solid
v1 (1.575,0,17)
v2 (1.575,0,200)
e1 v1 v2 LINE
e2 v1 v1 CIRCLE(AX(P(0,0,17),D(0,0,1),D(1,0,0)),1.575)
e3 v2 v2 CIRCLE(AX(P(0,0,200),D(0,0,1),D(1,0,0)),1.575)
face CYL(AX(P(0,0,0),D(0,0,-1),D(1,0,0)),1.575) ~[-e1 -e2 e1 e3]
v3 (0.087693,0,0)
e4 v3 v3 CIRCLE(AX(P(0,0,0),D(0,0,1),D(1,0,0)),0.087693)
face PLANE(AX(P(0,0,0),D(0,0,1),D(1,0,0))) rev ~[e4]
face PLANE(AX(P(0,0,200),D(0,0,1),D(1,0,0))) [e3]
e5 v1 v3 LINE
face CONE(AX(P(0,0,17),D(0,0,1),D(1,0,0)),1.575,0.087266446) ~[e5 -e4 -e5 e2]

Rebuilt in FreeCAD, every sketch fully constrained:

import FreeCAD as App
import Part
import Sketcher


def edges_at(feature, points):
    """Names of the edges that pass closest to the given points."""
    edges = feature.Shape.Edges
    near = lambda p: min(range(len(edges)), key=lambda i: edges[i].distToShape(Part.Vertex(*p))[0])
    return sorted({f"Edge{near(p) + 1}" for p in points})

doc = App.newDocument("Part")
body = doc.addObject("PartDesign::Body", "Body")

# Sketch on XY plane
sketch1 = body.newObject("Sketcher::SketchObject", "Sketch")
sketch1.AttachmentSupport = (doc.getObject("XY_Plane"), [""])
sketch1.MapMode = "FlatFace"
sketch1.addGeometry(Part.Circle(App.Vector(0, 0, 0), App.Vector(0, 0, 1), 1.6), False)
sketch1.addConstraint(Sketcher.Constraint("Coincident", 0, 3, -1, 1))
sketch1.addConstraint(Sketcher.Constraint("Diameter", 0, 3.15))
pad1 = body.newObject("PartDesign::Pad", "Pad")
pad1.Profile = sketch1
pad1.Length = 200
doc.recompute()

chamfer = body.newObject("PartDesign::Chamfer", "Chamfer")
chamfer.Base = (pad1, edges_at(pad1, [(-1.575, 0, 0)]))
chamfer.ChamferType = "Two distances"
chamfer.Size = 17
chamfer.Size2 = 1.487307

doc.recompute()
